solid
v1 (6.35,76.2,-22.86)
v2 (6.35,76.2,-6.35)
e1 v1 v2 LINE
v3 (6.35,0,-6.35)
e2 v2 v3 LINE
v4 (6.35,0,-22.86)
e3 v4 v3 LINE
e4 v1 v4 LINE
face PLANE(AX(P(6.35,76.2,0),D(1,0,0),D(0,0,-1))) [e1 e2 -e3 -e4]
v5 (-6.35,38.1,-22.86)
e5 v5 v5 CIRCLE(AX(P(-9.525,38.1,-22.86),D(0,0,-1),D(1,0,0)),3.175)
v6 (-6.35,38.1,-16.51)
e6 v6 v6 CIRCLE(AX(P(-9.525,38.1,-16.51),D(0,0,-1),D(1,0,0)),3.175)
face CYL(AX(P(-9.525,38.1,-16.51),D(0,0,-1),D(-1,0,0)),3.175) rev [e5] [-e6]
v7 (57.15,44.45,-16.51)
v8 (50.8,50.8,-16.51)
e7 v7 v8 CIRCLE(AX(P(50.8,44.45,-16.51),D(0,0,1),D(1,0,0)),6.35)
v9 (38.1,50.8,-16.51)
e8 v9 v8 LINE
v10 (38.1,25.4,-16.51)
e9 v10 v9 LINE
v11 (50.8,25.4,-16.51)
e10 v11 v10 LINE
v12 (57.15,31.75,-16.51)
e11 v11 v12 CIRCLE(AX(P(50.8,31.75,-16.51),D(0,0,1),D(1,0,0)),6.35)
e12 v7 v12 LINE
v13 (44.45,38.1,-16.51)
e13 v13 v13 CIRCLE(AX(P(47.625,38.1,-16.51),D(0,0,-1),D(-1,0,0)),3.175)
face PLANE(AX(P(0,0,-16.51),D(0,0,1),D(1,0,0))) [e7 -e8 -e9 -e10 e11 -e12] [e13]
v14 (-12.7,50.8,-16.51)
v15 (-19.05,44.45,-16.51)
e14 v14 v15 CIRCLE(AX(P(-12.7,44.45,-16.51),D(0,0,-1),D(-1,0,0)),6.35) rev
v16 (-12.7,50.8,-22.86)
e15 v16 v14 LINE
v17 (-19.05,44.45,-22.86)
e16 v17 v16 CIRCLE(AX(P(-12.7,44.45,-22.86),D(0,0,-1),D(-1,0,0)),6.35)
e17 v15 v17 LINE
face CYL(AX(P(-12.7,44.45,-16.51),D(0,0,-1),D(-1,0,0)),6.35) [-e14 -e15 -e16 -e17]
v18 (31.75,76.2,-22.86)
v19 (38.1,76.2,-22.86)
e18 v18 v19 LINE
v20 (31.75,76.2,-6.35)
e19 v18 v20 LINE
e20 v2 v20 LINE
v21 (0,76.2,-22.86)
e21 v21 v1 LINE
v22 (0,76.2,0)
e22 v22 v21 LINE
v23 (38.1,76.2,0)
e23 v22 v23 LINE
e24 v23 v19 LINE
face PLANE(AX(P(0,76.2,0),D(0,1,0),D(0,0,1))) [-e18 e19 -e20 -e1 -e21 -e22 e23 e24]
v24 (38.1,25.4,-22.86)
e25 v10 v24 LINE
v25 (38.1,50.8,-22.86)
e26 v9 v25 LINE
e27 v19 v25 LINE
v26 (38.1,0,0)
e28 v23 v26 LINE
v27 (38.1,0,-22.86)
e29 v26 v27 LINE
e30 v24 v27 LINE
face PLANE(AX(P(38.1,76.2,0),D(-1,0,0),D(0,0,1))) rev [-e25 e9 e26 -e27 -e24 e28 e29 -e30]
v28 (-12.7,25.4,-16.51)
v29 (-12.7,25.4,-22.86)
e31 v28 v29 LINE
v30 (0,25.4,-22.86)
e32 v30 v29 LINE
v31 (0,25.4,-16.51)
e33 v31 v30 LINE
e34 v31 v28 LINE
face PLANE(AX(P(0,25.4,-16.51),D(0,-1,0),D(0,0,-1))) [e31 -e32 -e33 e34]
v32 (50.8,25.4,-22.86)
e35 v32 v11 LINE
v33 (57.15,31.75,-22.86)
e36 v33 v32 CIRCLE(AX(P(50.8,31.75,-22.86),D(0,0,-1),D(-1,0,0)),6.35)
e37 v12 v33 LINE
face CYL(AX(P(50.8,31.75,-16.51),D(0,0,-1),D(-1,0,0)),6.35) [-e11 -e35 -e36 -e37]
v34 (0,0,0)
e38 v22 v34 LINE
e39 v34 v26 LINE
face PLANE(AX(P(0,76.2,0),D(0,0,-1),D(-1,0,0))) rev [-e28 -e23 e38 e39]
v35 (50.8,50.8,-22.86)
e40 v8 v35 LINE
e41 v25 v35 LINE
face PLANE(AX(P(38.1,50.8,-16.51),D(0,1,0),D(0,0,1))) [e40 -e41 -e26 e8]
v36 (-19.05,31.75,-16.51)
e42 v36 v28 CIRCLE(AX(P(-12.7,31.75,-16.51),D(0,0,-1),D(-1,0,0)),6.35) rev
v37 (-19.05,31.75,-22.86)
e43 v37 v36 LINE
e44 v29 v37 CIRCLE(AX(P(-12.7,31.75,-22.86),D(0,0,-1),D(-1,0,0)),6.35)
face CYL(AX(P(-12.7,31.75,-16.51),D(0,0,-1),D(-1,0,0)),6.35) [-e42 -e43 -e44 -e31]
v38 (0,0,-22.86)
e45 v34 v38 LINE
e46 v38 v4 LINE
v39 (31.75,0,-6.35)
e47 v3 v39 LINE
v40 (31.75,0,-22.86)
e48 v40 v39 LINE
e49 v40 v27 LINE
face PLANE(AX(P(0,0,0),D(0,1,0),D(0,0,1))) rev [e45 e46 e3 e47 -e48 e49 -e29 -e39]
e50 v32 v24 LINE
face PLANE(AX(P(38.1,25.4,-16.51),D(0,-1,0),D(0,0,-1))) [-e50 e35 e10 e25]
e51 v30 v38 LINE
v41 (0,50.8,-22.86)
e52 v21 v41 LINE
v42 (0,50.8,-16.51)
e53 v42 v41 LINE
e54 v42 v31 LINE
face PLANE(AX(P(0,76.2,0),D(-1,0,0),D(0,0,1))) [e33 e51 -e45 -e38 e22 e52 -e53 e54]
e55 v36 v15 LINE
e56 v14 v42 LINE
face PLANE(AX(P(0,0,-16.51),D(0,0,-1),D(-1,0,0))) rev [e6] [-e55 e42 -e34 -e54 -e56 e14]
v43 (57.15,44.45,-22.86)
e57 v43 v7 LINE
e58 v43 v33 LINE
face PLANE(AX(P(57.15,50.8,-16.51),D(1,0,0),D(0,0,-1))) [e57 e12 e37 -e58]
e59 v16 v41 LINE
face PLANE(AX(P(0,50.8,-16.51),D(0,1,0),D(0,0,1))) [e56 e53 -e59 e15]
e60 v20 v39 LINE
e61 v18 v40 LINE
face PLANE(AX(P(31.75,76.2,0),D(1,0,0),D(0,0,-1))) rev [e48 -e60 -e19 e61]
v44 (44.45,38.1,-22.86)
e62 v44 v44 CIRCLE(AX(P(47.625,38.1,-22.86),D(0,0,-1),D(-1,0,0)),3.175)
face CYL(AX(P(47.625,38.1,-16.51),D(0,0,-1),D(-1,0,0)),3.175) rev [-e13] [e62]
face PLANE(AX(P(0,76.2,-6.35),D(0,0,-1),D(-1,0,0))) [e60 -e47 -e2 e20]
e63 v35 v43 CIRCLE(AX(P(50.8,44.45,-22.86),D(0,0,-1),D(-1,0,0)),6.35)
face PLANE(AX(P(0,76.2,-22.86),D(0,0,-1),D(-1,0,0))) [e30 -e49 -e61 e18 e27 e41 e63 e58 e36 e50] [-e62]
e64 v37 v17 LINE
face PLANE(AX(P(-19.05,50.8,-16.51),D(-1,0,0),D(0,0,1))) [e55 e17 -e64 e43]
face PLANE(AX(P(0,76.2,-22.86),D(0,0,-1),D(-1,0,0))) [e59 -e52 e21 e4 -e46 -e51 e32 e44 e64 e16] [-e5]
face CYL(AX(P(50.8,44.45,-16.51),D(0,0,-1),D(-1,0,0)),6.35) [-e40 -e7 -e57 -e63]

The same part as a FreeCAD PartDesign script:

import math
import FreeCAD as App
import Part
import Sketcher
from FreeCAD import Vector
Q = App.Units.Quantity


def edges_at(feature, points):
    """Names of the edges that pass closest to the given points."""
    edges = feature.Shape.Edges
    near = lambda p: min(range(len(edges)), key=lambda i: edges[i].distToShape(Part.Vertex(*p))[0])
    return sorted({f"Edge{near(p) + 1}" for p in points})

doc = App.newDocument("Part")
body = doc.addObject("PartDesign::Body", "Body")

# Sketch on XZ plane
sketch1 = body.newObject("Sketcher::SketchObject", "Sketch")
sketch1.AttachmentSupport = (doc.getObject("XZ_Plane"), [""])
sketch1.MapMode = "FlatFace"
sketch1.addGeometry([
    Part.LineSegment(Vector(0, -23, 0), Vector(0, 0, 0)),  # 0
    Part.LineSegment(Vector(0, 0, 0), Vector(38, 0, 0)),  # 1
    Part.LineSegment(Vector(38, 0, 0), Vector(38, -23, 0)),  # 2
    Part.LineSegment(Vector(38, -23, 0), Vector(32, -23, 0)),  # 3
    Part.LineSegment(Vector(32, -23, 0), Vector(32, -6, 0)),  # 4
    Part.LineSegment(Vector(32, -6, 0), Vector(6, -6, 0)),  # 5
    Part.LineSegment(Vector(6, -6, 0), Vector(6, -23, 0)),  # 6
    Part.LineSegment(Vector(6, -23, 0), Vector(0, -23, 0)),  # 7
], False)
sketch1.addConstraint([
    Sketcher.Constraint("Coincident", 0, 2, 1, 1),
    Sketcher.Constraint("Coincident", 1, 2, 2, 1),
    Sketcher.Constraint("Coincident", 2, 2, 3, 1),
    Sketcher.Constraint("Coincident", 3, 2, 4, 1),
    Sketcher.Constraint("Coincident", 4, 2, 5, 1),
    Sketcher.Constraint("Coincident", 5, 2, 6, 1),
    Sketcher.Constraint("Coincident", 6, 2, 7, 1),
    Sketcher.Constraint("Coincident", 7, 2, 0, 1),
    Sketcher.Constraint("Vertical", 0),
    Sketcher.Constraint("Horizontal", 1),
    Sketcher.Constraint("Vertical", 2),
    Sketcher.Constraint("Horizontal", 3),
    Sketcher.Constraint("Vertical", 4),
    Sketcher.Constraint("Horizontal", 5),
    Sketcher.Constraint("Vertical", 6),
    Sketcher.Constraint("Horizontal", 7),
    Sketcher.Constraint("Coincident", 0, 2, -1, 1),
    Sketcher.Constraint("Horizontal", 3, 2, 6, 2),
    Sketcher.Constraint("Equal", 3, 7),
    Sketcher.Constraint("DistanceX", 5, 2, 5, 1, Q("1 in")),
    Sketcher.Constraint("DistanceX", 1, 1, 1, 2, Q("1.5 in")),
    Sketcher.Constraint("DistanceY", 0, 1, 0, 2, Q("0.9 in")),
    Sketcher.Constraint("DistanceY", 4, 1, 4, 2, Q("0.65 in")),
])
pad1 = body.newObject("PartDesign::Pad", "Pad")
pad1.Profile = sketch1
pad1.Length = Q("3 in")
pad1.Reversed = True

# Sketch on XY plane
sketch2 = body.newObject("Sketcher::SketchObject", "Sketch001")
sketch2.AttachmentSupport = (doc.getObject("XY_Plane"), [""])
sketch2.MapMode = "FlatFace"
sketch2.addGeometry([
    Part.LineSegment(Vector(19.1, 50.8, 0), Vector(-19.1, 50.8, 0)),  # 0
    Part.ArcOfCircle(Part.Circle(Vector(-19.1, 38.1, 0), Vector(0, 0, 1), 12.7), math.radians(90), math.radians(270)),  # 1
    Part.LineSegment(Vector(-19.1, 25.4, 0), Vector(19.1, 25.4, 0)),  # 2
    Part.ArcOfCircle(Part.Circle(Vector(19.1, 38.1, 0), Vector(0, 0, 1), 12.7), math.radians(-90), math.radians(90)),  # 3
    Part.Circle(Vector(-19.1, 38.1, 0), Vector(0, 0, 1), 2.5),  # 4
], False)
sketch2.addConstraint([
    Sketcher.Constraint("Tangent", 0, 2, 1, 1),
    Sketcher.Constraint("Tangent", 1, 2, 2, 1),
    Sketcher.Constraint("Tangent", 2, 2, 3, 1),
    Sketcher.Constraint("Tangent", 3, 2, 0, 1),
    Sketcher.Constraint("Horizontal", 0),
    Sketcher.Constraint("Horizontal", 2),
    Sketcher.Constraint("Coincident", 4, 3, 1, 3),
    Sketcher.Constraint("Radius", 1, Q("0.5 in")),
    Sketcher.Constraint("Diameter", 4, Q("0.197 in")),
    Sketcher.Constraint("DistanceX", 0, 2, 0, 1, Q("1.5 in")),
    Sketcher.Constraint("DistanceY", -1, 1, 0, 2, Q("2 in")),
    Sketcher.Constraint("DistanceX", 1, 3, -1, 1, Q("0.75 in")),
])
pad2 = body.newObject("PartDesign::Pad", "Pad001")
pad2.Profile = sketch2
pad2.Length = Q("0.25 in")
pad2.Reversed = True

# Sketch on XY plane
sketch3 = body.newObject("Sketcher::SketchObject", "Sketch002")
sketch3.AttachmentSupport = (doc.getObject("XY_Plane"), [""])
sketch3.MapMode = "FlatFace"
sketch3.AttachmentOffset = App.Placement(Vector(0, 0, -0.9 * 25.4), App.Rotation())
sketch3.addGeometry([
    Part.LineSegment(Vector(57.1, 50.8, 0), Vector(57.1, 25.4, 0)),  # 0
    Part.LineSegment(Vector(57.1, 25.4, 0), Vector(38.1, 25.4, 0)),  # 1
    Part.LineSegment(Vector(38.1, 25.4, 0), Vector(38.1, 50.8, 0)),  # 2
    Part.LineSegment(Vector(38.1, 50.8, 0), Vector(57.1, 50.8, 0)),  # 3
    Part.Circle(Vector(47.6, 38.1, 0), Vector(0, 0, 1), 3.2),  # 4
    Part.LineSegment(Vector(0, 50.8, 0), Vector(0, 25.4, 0)),  # 5
    Part.LineSegment(Vector(0, 25.4, 0), Vector(-19.1, 25.4, 0)),  # 6
    Part.LineSegment(Vector(-19.1, 25.4, 0), Vector(-19.1, 50.8, 0)),  # 7
    Part.LineSegment(Vector(-19.1, 50.8, 0), Vector(0, 50.8, 0)),  # 8
    Part.Circle(Vector(-9.5, 38.1, 0), Vector(0, 0, 1), 3.2),  # 9
], False)
sketch3.addConstraint([
    Sketcher.Constraint("Coincident", 0, 2, 1, 1),
    Sketcher.Constraint("Coincident", 1, 2, 2, 1),
    Sketcher.Constraint("Coincident", 2, 2, 3, 1),
    Sketcher.Constraint("Coincident", 3, 2, 0, 1),
    Sketcher.Constraint("Coincident", 5, 2, 6, 1),
    Sketcher.Constraint("Coincident", 6, 2, 7, 1),
    Sketcher.Constraint("Coincident", 7, 2, 8, 1),
    Sketcher.Constraint("Coincident", 8, 2, 5, 1),
    Sketcher.Constraint("Vertical", 0),
    Sketcher.Constraint("Horizontal", 1),
    Sketcher.Constraint("Vertical", 2),
    Sketcher.Constraint("Horizontal", 3),
    Sketcher.Constraint("Vertical", 5),
    Sketcher.Constraint("Horizontal", 6),
    Sketcher.Constraint("Vertical", 7),
    Sketcher.Constraint("Horizontal", 8),
    Sketcher.Constraint("Equal", 4, 9),
    Sketcher.Constraint("PointOnObject", 5, 2, -2),
    Sketcher.Constraint("Horizontal", 4, 3, 9, 3),
    Sketcher.Constraint("Horizontal", 1, 2, 5, 2),
    Sketcher.Constraint("Horizontal", 3, 2, 7, 2),
    Sketcher.Constraint("Equal", 3, 6),
    Sketcher.Constraint("Diameter", 4, Q("0.25 in")),
    Sketcher.Constraint("DistanceY", 0, 2, 0, 1, Q("1 in")),
    Sketcher.Constraint("DistanceY", -1, 1, 0, 2, Q("1 in")),
    Sketcher.Constraint("DistanceX", 1, 2, 1, 1, Q("0.75 in")),
    Sketcher.Constraint("DistanceY", -1, 1, 4, 3, Q("1.5 in")),
    Sketcher.Constraint("DistanceX", -1, 1, 1, 2, Q("1.5 in")),
    Sketcher.Constraint("DistanceX", 9, 3, 4, 3, Q("2.25 in")),
    Sketcher.Constraint("DistanceX", -1, 1, 4, 3, Q("1.875 in")),
])
pad3 = body.newObject("PartDesign::Pad", "Pad002")
pad3.Profile = sketch3
pad3.Length = Q("0.25 in")
doc.recompute()

fillet = body.newObject("PartDesign::Fillet", "Fillet")
fillet.Base = (pad3, edges_at(pad3, [
    (57.15, 25.4, -19.685),
    (57.15, 50.8, -19.685),
    (-19.05, 50.8, -19.685),
    (-19.05, 25.4, -19.685),
]))
fillet.Radius = Q("0.25 in")

# Sketch on XY plane
sketch4 = body.newObject("Sketcher::SketchObject", "Sketch003")
sketch4.AttachmentSupport = (doc.getObject("XY_Plane"), [""])
sketch4.MapMode = "FlatFace"
sketch4.addGeometry([
    Part.LineSegment(Vector(-19, 25, 0), Vector(0, 25, 0)),
    Part.LineSegment(Vector(0, 25, 0), Vector(0, 51, 0)),
    Part.LineSegment(Vector(0, 51, 0), Vector(-19, 51, 0)),
    Part.ArcOfCircle(Part.Circle(Vector(-19, 38, 0), Vector(0, 0, 1), 13), math.radians(90), math.radians(270)),
], False)
sketch4.addConstraint([
    Sketcher.Constraint("Coincident", 0, 2, 1, 1),
    Sketcher.Constraint("Coincident", 1, 2, 2, 1),
    Sketcher.Constraint("Tangent", 2, 2, 3, 1),
    Sketcher.Constraint("Tangent", 3, 2, 0, 1),
    Sketcher.Constraint("Horizontal", 0),
    Sketcher.Constraint("Vertical", 1),
    Sketcher.Constraint("Horizontal", 2),
    Sketcher.Constraint("PointOnObject", 0, 2, -2),
    Sketcher.Constraint("Radius", 3, Q("0.5 in")),
    Sketcher.Constraint("DistanceY", -1, 1, 0, 2, Q("1 in")),
    Sketcher.Constraint("DistanceX", 0, 1, 0, 2, Q("0.75 in")),
])
pocket1 = body.newObject("PartDesign::Pocket", "Pocket")
pocket1.Profile = sketch4
pocket1.Type = "UpToFirst"

doc.recompute()
